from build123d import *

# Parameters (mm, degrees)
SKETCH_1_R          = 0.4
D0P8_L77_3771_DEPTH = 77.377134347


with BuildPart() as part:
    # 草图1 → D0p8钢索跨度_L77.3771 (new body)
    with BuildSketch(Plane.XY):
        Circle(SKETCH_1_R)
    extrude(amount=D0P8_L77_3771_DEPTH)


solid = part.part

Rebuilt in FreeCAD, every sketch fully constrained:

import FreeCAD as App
import Part
import Sketcher
from FreeCAD import Vector
Q = App.Units.Quantity

doc = App.newDocument("Part")
body = doc.addObject("PartDesign::Body", "Body")

# Sketch on XY plane
sketch1 = body.newObject("Sketcher::SketchObject", "Sketch")
sketch1.AttachmentSupport = (doc.getObject("XY_Plane"), [""])
sketch1.MapMode = "FlatFace"
sketch1.addGeometry(Part.Circle(Vector(0, 0, 0), Vector(0, 0, 1), 0.4), False)
sketch1.addConstraint([
    Sketcher.Constraint("Coincident", 0, 3, -1, 1),
    Sketcher.Constraint("Diameter", 0, Q("0.8 mm")),
])
pad1 = body.newObject("PartDesign::Pad", "Pad")
pad1.Profile = sketch1
pad1.Length = 77.377134

doc.recompute()
